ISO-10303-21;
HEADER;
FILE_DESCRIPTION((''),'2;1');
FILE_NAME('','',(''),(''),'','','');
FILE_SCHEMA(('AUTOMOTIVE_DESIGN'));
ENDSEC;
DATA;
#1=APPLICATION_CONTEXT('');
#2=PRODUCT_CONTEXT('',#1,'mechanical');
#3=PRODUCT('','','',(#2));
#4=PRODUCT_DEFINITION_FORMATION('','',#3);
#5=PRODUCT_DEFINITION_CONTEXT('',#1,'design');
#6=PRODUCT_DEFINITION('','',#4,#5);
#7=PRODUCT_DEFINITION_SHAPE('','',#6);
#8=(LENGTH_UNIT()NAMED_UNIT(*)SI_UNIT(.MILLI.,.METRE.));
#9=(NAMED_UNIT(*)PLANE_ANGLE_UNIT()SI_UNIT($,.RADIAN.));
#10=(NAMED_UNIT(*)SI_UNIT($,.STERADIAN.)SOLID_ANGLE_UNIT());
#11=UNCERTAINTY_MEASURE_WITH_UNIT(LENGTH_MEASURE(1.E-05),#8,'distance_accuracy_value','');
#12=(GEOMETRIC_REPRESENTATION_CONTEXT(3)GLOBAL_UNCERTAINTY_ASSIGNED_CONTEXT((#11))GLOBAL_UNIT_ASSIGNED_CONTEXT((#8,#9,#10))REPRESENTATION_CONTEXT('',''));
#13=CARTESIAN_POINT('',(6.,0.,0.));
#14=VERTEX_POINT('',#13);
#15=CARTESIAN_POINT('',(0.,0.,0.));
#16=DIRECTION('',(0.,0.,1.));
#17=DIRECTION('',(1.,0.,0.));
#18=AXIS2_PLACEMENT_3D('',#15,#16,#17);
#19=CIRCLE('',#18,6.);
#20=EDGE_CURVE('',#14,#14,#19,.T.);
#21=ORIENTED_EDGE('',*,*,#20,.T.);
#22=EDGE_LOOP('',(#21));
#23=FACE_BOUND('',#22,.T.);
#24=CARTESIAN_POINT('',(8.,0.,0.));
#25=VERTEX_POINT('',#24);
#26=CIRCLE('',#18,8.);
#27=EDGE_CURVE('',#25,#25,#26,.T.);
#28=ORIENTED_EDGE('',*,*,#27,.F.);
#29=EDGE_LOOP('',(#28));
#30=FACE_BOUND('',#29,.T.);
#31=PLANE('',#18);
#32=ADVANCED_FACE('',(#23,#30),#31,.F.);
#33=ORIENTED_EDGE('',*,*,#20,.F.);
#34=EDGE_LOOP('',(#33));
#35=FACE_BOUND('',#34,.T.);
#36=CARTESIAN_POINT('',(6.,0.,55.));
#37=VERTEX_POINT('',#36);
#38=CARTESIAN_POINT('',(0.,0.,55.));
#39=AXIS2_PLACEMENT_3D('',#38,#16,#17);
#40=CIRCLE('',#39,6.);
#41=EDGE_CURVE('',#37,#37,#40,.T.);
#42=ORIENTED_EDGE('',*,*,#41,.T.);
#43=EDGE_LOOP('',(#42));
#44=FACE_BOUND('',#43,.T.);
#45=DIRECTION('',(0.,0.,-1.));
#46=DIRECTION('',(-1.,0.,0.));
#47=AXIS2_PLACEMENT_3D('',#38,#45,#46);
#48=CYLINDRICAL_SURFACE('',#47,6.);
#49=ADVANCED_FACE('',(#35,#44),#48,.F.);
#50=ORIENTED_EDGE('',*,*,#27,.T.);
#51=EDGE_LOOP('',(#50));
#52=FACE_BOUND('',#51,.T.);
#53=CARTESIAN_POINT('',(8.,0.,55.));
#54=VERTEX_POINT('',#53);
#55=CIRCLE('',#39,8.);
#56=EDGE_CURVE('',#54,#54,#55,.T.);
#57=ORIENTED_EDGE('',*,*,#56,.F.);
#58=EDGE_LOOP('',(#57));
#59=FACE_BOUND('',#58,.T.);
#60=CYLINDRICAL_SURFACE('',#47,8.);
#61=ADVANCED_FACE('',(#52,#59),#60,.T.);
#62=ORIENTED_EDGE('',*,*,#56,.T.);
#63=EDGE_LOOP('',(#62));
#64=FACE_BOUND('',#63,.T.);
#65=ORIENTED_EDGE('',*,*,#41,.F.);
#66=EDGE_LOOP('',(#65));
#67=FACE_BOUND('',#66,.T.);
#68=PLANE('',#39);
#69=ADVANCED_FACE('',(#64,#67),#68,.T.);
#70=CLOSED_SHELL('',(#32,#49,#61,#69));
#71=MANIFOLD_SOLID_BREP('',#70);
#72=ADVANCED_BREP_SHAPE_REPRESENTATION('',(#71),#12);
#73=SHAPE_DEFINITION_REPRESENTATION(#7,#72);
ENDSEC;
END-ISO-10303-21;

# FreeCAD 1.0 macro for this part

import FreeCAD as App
import Part
import Sketcher
from FreeCAD import Vector

doc = App.newDocument("Part")
body = doc.addObject("PartDesign::Body", "Body")

# Sketch on XY plane
sketch1 = body.newObject("Sketcher::SketchObject", "Sketch")
sketch1.AttachmentSupport = (doc.getObject("XY_Plane"), [""])
sketch1.MapMode = "FlatFace"
sketch1.addGeometry([
    Part.Circle(Vector(0, 0, 0), Vector(0, 0, 1), 8),
    Part.Circle(Vector(0, 0, 0), Vector(0, 0, 1), 6),
], False)
sketch1.addConstraint([
    Sketcher.Constraint("Coincident", 0, 3, -1, 1),
    Sketcher.Constraint("Coincident", 1, 3, -1, 1),
    Sketcher.Constraint("Diameter", 0, 16.0),
    Sketcher.Constraint("Diameter", 1, 12.0),
])
pad1 = body.newObject("PartDesign::Pad", "Pad")
pad1.Profile = sketch1
pad1.Length = 55

doc.recompute()
